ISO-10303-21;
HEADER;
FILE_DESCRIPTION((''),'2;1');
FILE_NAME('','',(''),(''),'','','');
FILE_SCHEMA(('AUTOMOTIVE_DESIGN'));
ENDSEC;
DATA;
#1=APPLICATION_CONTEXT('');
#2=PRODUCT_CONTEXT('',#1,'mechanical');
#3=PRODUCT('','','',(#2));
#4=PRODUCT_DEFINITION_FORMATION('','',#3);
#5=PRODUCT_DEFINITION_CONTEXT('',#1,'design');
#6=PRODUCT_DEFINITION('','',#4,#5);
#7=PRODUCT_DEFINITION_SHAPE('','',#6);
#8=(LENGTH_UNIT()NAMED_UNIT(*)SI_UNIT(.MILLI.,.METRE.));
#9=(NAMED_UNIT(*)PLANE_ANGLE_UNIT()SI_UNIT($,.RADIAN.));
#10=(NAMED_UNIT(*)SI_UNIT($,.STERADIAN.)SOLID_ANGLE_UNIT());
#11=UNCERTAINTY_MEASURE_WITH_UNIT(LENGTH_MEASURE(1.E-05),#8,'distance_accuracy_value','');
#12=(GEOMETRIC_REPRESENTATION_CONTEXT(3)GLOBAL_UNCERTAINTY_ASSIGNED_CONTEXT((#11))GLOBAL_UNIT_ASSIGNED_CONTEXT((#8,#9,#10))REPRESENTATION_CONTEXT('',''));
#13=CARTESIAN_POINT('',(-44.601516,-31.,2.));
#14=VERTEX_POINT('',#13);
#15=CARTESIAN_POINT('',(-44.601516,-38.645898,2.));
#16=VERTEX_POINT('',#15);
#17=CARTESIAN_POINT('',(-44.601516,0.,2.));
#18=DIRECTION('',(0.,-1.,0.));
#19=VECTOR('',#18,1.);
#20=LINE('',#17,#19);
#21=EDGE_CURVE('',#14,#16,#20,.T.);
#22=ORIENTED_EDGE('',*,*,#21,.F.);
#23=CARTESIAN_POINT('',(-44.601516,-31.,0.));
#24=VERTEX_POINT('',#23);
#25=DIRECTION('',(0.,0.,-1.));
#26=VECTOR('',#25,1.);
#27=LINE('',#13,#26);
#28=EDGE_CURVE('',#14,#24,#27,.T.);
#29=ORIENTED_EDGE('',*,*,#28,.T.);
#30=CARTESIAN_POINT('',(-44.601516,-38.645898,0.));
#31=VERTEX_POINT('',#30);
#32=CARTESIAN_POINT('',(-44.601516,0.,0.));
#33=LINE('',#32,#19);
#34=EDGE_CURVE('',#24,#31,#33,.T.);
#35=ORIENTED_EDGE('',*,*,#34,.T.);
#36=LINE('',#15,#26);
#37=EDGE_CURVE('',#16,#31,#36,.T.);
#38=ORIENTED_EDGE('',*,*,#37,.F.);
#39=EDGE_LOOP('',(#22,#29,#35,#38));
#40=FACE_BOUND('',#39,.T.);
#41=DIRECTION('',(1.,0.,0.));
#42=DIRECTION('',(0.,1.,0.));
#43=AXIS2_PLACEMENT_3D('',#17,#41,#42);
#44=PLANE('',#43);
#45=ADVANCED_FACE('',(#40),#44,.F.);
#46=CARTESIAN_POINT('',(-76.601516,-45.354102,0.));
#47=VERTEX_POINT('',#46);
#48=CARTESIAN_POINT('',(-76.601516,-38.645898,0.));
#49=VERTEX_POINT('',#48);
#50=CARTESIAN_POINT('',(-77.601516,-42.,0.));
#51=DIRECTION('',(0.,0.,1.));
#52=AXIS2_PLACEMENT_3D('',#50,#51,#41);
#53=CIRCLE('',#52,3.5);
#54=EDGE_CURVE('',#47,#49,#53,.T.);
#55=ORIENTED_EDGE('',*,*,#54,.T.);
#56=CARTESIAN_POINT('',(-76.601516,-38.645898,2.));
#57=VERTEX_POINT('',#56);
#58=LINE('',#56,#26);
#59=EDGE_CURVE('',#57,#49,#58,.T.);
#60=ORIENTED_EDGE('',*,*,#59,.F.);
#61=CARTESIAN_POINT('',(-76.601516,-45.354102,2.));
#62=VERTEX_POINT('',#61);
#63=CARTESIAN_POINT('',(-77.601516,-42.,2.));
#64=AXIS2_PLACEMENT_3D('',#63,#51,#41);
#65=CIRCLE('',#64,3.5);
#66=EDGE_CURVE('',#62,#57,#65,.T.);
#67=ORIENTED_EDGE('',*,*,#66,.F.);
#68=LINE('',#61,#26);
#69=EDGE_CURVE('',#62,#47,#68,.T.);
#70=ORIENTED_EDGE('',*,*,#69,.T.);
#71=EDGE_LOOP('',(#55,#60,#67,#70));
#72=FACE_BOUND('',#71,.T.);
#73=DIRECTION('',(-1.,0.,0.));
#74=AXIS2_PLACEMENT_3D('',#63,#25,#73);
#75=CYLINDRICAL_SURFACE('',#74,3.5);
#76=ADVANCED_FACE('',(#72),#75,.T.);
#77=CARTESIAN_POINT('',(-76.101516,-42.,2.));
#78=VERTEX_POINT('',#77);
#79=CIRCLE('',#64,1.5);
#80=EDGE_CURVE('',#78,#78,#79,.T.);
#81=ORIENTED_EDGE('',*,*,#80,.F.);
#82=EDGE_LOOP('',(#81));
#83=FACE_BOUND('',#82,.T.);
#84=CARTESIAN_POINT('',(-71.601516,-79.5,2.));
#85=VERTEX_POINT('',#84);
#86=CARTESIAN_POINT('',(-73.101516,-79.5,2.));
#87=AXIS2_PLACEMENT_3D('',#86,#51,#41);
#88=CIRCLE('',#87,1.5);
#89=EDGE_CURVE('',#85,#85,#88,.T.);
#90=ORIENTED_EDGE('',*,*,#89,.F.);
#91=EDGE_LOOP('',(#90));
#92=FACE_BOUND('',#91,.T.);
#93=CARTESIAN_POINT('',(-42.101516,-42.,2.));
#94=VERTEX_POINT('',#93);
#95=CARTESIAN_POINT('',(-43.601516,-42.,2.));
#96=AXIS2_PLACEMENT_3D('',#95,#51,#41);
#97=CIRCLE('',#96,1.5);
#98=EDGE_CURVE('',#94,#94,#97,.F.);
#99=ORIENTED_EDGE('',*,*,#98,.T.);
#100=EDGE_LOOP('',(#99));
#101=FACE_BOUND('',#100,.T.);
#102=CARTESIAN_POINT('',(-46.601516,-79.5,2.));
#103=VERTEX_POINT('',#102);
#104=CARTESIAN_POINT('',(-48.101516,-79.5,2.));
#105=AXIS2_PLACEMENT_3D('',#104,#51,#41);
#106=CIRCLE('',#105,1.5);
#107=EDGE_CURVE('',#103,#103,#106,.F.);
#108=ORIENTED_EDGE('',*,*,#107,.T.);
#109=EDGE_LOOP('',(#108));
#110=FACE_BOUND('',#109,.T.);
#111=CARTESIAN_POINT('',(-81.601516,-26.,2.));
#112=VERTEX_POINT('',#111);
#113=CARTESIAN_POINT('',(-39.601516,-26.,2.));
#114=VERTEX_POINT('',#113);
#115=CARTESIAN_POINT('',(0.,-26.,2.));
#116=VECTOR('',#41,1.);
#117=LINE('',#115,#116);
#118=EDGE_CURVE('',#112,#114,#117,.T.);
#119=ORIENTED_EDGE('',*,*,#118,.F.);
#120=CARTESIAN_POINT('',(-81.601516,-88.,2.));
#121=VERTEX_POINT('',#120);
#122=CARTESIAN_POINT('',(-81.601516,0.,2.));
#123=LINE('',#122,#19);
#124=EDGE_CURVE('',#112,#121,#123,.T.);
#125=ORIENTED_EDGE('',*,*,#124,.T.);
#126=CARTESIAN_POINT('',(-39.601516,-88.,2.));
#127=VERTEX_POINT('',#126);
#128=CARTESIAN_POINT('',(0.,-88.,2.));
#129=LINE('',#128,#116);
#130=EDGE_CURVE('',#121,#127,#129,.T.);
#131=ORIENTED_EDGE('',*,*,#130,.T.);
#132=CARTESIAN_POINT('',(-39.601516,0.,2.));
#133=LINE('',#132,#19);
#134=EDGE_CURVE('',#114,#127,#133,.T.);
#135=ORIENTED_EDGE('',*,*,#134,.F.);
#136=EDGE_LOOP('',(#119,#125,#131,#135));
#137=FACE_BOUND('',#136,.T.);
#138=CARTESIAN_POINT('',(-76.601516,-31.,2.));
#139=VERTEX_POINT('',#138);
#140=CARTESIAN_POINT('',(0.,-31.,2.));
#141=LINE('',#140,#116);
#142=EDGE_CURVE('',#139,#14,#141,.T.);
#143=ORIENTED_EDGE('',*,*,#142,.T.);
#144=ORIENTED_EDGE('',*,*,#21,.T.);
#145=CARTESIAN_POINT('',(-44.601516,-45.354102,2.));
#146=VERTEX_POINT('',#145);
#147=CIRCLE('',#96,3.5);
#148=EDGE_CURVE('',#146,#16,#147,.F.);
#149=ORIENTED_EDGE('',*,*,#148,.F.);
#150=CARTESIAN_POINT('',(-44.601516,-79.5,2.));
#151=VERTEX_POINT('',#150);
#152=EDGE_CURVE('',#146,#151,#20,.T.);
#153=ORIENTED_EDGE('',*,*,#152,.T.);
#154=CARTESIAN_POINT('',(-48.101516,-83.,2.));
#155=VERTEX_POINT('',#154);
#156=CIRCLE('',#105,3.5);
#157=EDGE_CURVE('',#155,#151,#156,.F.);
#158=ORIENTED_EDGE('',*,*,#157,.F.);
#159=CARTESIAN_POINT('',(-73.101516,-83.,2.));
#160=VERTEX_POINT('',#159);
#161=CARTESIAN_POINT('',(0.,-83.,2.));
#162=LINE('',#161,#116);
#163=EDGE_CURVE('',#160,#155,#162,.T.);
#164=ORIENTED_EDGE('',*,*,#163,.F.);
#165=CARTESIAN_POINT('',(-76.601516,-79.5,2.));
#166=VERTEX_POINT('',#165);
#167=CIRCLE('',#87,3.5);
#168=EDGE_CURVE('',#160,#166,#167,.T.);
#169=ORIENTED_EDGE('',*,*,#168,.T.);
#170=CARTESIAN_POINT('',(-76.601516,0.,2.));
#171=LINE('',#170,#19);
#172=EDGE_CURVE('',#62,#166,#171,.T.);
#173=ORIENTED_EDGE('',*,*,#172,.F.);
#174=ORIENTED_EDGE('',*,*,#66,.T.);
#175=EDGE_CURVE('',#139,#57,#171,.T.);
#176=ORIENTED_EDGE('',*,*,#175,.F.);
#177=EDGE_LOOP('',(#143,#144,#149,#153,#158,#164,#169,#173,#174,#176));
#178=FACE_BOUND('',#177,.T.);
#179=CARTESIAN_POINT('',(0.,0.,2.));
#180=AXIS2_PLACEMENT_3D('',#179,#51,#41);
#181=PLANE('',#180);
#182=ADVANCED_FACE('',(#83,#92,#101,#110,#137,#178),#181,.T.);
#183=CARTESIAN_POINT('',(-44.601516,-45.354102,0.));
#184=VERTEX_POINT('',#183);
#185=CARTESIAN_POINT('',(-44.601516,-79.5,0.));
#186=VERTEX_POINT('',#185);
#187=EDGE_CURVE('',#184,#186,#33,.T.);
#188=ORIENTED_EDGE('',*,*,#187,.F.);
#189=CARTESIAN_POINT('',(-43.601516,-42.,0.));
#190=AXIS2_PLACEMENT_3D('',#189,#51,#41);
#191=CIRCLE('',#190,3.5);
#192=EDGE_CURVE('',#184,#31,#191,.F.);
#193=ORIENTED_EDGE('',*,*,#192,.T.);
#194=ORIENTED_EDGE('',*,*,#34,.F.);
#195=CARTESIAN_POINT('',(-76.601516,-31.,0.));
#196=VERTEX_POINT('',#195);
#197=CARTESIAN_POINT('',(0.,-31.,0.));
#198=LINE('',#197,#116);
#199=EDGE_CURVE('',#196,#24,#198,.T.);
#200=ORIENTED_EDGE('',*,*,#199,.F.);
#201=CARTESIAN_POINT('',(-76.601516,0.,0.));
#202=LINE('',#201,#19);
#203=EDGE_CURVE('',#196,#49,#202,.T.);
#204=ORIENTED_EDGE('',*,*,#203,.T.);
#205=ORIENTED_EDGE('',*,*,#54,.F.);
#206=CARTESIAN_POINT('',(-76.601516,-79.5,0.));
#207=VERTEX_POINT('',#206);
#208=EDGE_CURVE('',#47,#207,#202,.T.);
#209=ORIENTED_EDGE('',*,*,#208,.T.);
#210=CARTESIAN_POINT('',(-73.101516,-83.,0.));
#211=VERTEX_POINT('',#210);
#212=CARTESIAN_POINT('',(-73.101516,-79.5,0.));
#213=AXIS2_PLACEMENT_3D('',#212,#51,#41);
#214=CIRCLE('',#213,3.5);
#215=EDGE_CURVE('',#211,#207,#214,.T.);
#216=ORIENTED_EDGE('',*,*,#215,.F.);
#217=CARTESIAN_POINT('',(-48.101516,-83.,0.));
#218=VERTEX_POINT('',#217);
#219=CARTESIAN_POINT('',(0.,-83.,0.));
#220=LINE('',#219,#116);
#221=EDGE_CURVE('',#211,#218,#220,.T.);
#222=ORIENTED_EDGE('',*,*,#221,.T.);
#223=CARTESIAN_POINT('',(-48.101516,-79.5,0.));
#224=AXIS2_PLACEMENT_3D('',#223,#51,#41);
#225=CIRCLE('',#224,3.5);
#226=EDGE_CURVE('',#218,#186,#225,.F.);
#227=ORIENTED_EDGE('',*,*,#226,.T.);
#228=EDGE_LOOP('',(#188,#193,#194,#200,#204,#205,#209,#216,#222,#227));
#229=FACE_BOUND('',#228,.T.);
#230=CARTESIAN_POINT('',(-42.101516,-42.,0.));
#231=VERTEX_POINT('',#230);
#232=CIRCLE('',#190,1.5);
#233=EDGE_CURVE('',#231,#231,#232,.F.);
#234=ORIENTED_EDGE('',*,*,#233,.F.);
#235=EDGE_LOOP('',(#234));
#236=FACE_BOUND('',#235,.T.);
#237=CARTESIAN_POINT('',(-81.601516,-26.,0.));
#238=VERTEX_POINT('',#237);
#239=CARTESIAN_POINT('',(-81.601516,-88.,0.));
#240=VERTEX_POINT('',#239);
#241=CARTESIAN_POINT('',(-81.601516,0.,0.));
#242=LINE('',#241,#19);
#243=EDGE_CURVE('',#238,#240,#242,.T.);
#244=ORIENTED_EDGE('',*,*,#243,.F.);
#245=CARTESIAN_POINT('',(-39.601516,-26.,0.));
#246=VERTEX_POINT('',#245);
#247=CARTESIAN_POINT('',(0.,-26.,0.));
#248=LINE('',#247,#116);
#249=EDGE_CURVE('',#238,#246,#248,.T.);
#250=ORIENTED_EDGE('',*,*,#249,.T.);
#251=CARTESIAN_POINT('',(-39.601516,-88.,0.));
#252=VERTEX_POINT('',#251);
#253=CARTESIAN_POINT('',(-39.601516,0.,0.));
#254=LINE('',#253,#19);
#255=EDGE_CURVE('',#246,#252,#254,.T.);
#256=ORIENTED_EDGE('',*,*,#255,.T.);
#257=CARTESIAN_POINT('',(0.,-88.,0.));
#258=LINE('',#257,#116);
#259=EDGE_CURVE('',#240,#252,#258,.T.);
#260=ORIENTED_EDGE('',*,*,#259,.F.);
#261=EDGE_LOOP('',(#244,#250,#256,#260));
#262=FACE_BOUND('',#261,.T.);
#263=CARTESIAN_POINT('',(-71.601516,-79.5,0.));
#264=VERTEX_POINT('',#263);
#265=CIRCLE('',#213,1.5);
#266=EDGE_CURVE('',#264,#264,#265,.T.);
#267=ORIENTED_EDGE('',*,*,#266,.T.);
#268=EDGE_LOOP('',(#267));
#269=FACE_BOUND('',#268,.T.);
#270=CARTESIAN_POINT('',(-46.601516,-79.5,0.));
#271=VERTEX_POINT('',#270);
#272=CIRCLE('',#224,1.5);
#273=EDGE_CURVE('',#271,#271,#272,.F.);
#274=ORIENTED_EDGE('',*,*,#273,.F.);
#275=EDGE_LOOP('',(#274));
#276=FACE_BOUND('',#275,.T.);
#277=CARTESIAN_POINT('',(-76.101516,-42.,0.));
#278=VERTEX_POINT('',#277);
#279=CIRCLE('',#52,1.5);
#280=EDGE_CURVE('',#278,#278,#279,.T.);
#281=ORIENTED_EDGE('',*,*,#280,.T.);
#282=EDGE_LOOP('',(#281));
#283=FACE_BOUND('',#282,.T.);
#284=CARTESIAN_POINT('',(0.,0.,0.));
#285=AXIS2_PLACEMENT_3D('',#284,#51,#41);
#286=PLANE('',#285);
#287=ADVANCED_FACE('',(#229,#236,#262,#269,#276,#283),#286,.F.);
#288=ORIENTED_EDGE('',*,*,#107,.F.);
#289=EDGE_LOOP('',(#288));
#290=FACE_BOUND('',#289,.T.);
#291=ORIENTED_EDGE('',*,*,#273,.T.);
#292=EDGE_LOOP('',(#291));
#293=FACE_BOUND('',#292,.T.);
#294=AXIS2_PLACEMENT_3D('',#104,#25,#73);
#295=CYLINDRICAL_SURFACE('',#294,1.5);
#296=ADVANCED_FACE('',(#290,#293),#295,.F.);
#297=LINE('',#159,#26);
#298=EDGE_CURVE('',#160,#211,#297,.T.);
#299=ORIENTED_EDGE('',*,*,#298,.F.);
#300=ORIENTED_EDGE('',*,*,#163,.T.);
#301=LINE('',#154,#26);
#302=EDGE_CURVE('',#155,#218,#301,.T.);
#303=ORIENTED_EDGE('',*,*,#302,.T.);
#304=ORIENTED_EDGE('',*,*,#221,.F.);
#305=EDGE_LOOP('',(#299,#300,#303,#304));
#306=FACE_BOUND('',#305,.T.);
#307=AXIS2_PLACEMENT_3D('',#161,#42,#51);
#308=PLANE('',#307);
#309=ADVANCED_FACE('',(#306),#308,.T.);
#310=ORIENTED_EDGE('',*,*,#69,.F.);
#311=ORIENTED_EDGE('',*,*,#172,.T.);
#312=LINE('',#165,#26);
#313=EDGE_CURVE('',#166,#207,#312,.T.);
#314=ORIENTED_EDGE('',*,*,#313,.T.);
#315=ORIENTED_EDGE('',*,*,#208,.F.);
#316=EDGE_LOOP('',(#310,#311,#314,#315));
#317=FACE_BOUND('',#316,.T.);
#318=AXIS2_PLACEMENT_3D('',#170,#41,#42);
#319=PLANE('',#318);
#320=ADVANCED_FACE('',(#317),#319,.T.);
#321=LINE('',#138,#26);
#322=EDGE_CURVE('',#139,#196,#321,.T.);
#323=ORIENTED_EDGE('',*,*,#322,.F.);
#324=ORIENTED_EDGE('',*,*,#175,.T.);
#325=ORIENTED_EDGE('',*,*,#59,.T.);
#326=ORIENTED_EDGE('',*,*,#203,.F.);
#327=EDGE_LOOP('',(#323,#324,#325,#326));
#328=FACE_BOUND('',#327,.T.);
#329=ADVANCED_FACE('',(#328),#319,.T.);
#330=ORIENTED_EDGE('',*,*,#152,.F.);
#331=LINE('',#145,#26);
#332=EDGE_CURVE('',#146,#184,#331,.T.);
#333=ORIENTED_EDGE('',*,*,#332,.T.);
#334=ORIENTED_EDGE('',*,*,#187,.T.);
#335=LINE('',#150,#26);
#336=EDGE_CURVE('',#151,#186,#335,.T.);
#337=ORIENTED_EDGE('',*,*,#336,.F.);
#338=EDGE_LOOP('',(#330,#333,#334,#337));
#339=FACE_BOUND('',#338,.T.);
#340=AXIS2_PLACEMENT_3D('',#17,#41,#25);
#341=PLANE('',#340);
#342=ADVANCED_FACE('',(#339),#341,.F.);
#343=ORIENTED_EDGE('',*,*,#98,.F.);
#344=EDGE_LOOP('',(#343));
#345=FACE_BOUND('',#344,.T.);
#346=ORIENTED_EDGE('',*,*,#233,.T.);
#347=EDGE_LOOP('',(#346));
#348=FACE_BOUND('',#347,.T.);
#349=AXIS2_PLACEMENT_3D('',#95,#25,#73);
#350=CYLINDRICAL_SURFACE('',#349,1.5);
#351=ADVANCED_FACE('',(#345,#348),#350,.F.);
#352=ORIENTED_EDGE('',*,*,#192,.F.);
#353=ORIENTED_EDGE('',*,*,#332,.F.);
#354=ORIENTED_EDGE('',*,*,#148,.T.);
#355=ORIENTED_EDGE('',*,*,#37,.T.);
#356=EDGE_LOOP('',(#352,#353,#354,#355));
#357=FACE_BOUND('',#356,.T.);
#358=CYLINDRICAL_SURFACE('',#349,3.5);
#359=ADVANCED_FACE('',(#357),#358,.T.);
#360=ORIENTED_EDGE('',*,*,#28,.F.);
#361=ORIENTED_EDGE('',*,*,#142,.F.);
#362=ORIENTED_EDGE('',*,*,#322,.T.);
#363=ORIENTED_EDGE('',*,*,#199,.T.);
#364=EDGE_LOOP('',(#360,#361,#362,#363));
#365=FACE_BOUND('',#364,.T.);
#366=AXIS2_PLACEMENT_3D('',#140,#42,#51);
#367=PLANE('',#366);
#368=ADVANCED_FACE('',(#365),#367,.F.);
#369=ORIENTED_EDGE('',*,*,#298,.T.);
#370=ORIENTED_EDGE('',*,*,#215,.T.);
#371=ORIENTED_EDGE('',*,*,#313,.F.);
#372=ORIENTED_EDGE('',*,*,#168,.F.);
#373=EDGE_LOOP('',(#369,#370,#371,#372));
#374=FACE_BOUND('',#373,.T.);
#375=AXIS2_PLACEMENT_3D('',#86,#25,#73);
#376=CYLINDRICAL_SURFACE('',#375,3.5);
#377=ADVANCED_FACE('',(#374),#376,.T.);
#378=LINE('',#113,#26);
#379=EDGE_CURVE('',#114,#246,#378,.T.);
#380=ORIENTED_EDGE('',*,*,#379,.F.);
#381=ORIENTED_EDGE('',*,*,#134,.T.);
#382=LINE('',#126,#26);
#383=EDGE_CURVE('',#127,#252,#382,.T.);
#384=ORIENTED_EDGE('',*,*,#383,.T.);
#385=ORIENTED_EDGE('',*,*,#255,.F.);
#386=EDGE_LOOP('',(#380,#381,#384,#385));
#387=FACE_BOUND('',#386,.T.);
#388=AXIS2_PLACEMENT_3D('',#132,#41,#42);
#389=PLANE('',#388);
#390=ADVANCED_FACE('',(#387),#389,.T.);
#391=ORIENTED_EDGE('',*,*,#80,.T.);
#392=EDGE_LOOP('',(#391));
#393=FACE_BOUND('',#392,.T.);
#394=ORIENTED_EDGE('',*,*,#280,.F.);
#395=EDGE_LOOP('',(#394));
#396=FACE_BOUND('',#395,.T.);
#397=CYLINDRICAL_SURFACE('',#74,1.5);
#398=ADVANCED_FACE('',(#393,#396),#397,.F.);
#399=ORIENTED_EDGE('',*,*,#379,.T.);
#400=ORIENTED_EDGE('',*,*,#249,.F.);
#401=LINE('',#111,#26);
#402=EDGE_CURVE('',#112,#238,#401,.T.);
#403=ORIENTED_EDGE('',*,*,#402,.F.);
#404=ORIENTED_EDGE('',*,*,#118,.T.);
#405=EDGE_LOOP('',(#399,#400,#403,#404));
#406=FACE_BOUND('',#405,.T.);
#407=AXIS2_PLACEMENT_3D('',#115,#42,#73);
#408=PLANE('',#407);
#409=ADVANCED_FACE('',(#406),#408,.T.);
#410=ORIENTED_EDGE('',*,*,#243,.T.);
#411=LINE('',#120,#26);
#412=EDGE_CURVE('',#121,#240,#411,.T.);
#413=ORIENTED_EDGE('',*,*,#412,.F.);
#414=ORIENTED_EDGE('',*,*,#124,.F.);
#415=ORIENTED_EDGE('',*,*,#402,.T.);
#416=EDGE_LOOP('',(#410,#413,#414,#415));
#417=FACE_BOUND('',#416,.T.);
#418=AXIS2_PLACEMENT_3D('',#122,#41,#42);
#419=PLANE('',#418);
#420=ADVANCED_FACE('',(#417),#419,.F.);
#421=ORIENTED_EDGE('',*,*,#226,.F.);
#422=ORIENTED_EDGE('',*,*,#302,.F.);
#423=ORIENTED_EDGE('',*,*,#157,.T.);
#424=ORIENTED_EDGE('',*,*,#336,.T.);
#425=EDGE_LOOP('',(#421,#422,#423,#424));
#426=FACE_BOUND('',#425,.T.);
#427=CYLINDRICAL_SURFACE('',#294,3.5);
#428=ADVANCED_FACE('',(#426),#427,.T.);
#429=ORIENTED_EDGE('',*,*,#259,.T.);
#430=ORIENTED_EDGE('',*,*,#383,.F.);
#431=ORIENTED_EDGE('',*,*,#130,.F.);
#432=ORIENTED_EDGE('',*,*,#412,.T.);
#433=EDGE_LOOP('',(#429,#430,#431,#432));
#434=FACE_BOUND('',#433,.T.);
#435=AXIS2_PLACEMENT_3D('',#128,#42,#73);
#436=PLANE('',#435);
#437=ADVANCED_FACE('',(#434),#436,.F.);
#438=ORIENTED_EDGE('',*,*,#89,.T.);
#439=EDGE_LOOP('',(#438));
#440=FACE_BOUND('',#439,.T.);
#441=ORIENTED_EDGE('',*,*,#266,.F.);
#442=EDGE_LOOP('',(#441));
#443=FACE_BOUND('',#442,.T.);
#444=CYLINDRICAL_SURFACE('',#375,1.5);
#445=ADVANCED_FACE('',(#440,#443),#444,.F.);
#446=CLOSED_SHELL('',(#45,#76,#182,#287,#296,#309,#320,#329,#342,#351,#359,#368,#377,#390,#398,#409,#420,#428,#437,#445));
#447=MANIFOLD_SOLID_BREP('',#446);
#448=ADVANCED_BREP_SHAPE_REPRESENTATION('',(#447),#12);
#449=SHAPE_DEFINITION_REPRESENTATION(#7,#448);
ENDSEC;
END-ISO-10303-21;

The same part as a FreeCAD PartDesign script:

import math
import FreeCAD as App
import Part
import Sketcher

V = App.Vector


def add_polygon(sketch, points):
    """Adds a closed chain of lines whose ends are joined by coincident constraints."""
    first, n = sketch.GeometryCount, len(points)
    for a, b in zip(points, points[1:] + points[:1]):
        sketch.addGeometry(Part.LineSegment(App.Vector(*a, 0), App.Vector(*b, 0)), False)
    for i in range(n):
        sketch.addConstraint(Sketcher.Constraint("Coincident", first + i, 2, first + (i + 1) % n, 1))

doc = App.newDocument("Part")
body = doc.addObject("PartDesign::Body", "Body")

# Sketch on XY plane
sketch1 = doc.addObject("Sketcher::SketchObject", "Sketch")
body.addObject(sketch1)
sketch1.AttachmentSupport = (doc.XY_Plane, [""])
sketch1.MapMode = "FlatFace"
add_polygon(sketch1, [(-81.6, -88), (-39.6, -88), (-39.6, -26), (-81.6, -26)])  # lines 0-3
sketch1.addGeometry(Part.Circle(V(-73.1, -79.5, 0), V(0, 0, 1), 1.5), False)  # 4
sketch1.addGeometry(Part.Circle(V(-48.1, -79.5, 0), V(0, 0, 1), 1.5), False)  # 5
sketch1.addGeometry(Part.Circle(V(-77.6, -42, 0), V(0, 0, 1), 1.5), False)  # 6
sketch1.addGeometry(Part.ArcOfCircle(Part.Circle(V(-73.1, -79.5, 0), V(0, 0, 1), 3.5), math.radians(-90), math.radians(180)), False)  # 7
sketch1.addGeometry(Part.LineSegment(V(-76.6, -79.5, 0), V(-76.6, -45.4, 0)), False)  # 8
sketch1.addGeometry(Part.ArcOfCircle(Part.Circle(V(-77.6, -42, 0), V(0, 0, 1), 3.5), math.radians(-73), math.radians(73)), False)  # 9
sketch1.addGeometry(Part.LineSegment(V(-76.6, -38.6, 0), V(-76.6, -31, 0)), False)  # 10
sketch1.addGeometry(Part.LineSegment(V(-76.6, -31, 0), V(-44.6, -31, 0)), False)  # 11
sketch1.addGeometry(Part.LineSegment(V(-44.6, -31, 0), V(-44.6, -38.6, 0)), False)  # 12
sketch1.addGeometry(Part.ArcOfCircle(Part.Circle(V(-43.6, -42, 0), V(0, 0, 1), 3.5), math.radians(107), math.radians(253)), False)  # 13
sketch1.addGeometry(Part.LineSegment(V(-44.6, -45.4, 0), V(-44.6, -79.5, 0)), False)  # 14
sketch1.addGeometry(Part.ArcOfCircle(Part.Circle(V(-48.1, -79.5, 0), V(0, 0, 1), 3.5), math.radians(0), math.radians(270)), False)  # 15
sketch1.addGeometry(Part.LineSegment(V(-48.1, -83, 0), V(-73.1, -83, 0)), False)  # 16
sketch1.addGeometry(Part.Circle(V(-43.6, -42, 0), V(0, 0, 1), 1.5), False)  # 17
sketch1.addConstraint(Sketcher.Constraint("Tangent", 7, 2, 8, 1))
sketch1.addConstraint(Sketcher.Constraint("Coincident", 8, 2, 9, 1))
sketch1.addConstraint(Sketcher.Constraint("Coincident", 9, 2, 10, 1))
sketch1.addConstraint(Sketcher.Constraint("Coincident", 10, 2, 11, 1))
sketch1.addConstraint(Sketcher.Constraint("Coincident", 11, 2, 12, 1))
sketch1.addConstraint(Sketcher.Constraint("Coincident", 12, 2, 13, 1))
sketch1.addConstraint(Sketcher.Constraint("Coincident", 13, 2, 14, 1))
sketch1.addConstraint(Sketcher.Constraint("Tangent", 14, 2, 15, 1))
sketch1.addConstraint(Sketcher.Constraint("Tangent", 15, 2, 16, 1))
sketch1.addConstraint(Sketcher.Constraint("Tangent", 16, 2, 7, 1))
sketch1.addConstraint(Sketcher.Constraint("Horizontal", 0))
sketch1.addConstraint(Sketcher.Constraint("Vertical", 1))
sketch1.addConstraint(Sketcher.Constraint("Horizontal", 2))
sketch1.addConstraint(Sketcher.Constraint("Vertical", 3))
sketch1.addConstraint(Sketcher.Constraint("Vertical", 8))
sketch1.addConstraint(Sketcher.Constraint("Vertical", 10))
sketch1.addConstraint(Sketcher.Constraint("Horizontal", 11))
sketch1.addConstraint(Sketcher.Constraint("Vertical", 12))
sketch1.addConstraint(Sketcher.Constraint("Vertical", 14))
sketch1.addConstraint(Sketcher.Constraint("Horizontal", 16))
sketch1.addConstraint(Sketcher.Constraint("Coincident", 7, 3, 4, 3))
sketch1.addConstraint(Sketcher.Constraint("Coincident", 9, 3, 6, 3))
sketch1.addConstraint(Sketcher.Constraint("Coincident", 15, 3, 5, 3))
sketch1.addConstraint(Sketcher.Constraint("Coincident", 17, 3, 13, 3))
sketch1.addConstraint(Sketcher.Constraint("Equal", 4, 5))
sketch1.addConstraint(Sketcher.Constraint("Equal", 5, 6))
sketch1.addConstraint(Sketcher.Constraint("Equal", 7, 9))
sketch1.addConstraint(Sketcher.Constraint("Equal", 9, 13))
sketch1.addConstraint(Sketcher.Constraint("Equal", 13, 15))
sketch1.addConstraint(Sketcher.Constraint("Equal", 6, 17))
sketch1.addConstraint(Sketcher.Constraint("Horizontal", 9, 3, 13, 3))
sketch1.addConstraint(Sketcher.Constraint("Horizontal", 9, 2, 12, 2))
sketch1.addConstraint(Sketcher.Constraint("Horizontal", 8, 2, 13, 2))
sketch1.addConstraint(Sketcher.Constraint("Vertical", 8, 2, 9, 2))
sketch1.addConstraint(Sketcher.Constraint("Diameter", 4, 3.0))
sketch1.addConstraint(Sketcher.Constraint("Radius", 7, 3.5))
sketch1.addConstraint(Sketcher.Constraint("DistanceX", 0, 1, 0, 2, 42.0))
sketch1.addConstraint(Sketcher.Constraint("DistanceX", 11, 1, 11, 2, 32.0))
sketch1.addConstraint(Sketcher.Constraint("DistanceY", 1, 1, 1, 2, 62.0))
sketch1.addConstraint(Sketcher.Constraint("DistanceY", 6, 3, -1, 1, 42.0))
sketch1.addConstraint(Sketcher.Constraint("DistanceY", 0, 2, -1, 1, 88.0))
sketch1.addConstraint(Sketcher.Constraint("DistanceY", 10, 2, -1, 1, 31.0))
sketch1.addConstraint(Sketcher.Constraint("DistanceY", 15, 2, -1, 1, 83.0))
sketch1.addConstraint(Sketcher.Constraint("DistanceX", 6, 3, 13, 3, 34.0))
sketch1.addConstraint(Sketcher.Constraint("DistanceX", 13, 3, 0, 2, 4.0))
sketch1.addConstraint(Sketcher.Constraint("DistanceX", 4, 3, -1, 1, 73.101516))
pad1 = doc.addObject("PartDesign::Pad", "Pad")
body.addObject(pad1)
pad1.Profile = sketch1
pad1.Length = 2

doc.recompute()
